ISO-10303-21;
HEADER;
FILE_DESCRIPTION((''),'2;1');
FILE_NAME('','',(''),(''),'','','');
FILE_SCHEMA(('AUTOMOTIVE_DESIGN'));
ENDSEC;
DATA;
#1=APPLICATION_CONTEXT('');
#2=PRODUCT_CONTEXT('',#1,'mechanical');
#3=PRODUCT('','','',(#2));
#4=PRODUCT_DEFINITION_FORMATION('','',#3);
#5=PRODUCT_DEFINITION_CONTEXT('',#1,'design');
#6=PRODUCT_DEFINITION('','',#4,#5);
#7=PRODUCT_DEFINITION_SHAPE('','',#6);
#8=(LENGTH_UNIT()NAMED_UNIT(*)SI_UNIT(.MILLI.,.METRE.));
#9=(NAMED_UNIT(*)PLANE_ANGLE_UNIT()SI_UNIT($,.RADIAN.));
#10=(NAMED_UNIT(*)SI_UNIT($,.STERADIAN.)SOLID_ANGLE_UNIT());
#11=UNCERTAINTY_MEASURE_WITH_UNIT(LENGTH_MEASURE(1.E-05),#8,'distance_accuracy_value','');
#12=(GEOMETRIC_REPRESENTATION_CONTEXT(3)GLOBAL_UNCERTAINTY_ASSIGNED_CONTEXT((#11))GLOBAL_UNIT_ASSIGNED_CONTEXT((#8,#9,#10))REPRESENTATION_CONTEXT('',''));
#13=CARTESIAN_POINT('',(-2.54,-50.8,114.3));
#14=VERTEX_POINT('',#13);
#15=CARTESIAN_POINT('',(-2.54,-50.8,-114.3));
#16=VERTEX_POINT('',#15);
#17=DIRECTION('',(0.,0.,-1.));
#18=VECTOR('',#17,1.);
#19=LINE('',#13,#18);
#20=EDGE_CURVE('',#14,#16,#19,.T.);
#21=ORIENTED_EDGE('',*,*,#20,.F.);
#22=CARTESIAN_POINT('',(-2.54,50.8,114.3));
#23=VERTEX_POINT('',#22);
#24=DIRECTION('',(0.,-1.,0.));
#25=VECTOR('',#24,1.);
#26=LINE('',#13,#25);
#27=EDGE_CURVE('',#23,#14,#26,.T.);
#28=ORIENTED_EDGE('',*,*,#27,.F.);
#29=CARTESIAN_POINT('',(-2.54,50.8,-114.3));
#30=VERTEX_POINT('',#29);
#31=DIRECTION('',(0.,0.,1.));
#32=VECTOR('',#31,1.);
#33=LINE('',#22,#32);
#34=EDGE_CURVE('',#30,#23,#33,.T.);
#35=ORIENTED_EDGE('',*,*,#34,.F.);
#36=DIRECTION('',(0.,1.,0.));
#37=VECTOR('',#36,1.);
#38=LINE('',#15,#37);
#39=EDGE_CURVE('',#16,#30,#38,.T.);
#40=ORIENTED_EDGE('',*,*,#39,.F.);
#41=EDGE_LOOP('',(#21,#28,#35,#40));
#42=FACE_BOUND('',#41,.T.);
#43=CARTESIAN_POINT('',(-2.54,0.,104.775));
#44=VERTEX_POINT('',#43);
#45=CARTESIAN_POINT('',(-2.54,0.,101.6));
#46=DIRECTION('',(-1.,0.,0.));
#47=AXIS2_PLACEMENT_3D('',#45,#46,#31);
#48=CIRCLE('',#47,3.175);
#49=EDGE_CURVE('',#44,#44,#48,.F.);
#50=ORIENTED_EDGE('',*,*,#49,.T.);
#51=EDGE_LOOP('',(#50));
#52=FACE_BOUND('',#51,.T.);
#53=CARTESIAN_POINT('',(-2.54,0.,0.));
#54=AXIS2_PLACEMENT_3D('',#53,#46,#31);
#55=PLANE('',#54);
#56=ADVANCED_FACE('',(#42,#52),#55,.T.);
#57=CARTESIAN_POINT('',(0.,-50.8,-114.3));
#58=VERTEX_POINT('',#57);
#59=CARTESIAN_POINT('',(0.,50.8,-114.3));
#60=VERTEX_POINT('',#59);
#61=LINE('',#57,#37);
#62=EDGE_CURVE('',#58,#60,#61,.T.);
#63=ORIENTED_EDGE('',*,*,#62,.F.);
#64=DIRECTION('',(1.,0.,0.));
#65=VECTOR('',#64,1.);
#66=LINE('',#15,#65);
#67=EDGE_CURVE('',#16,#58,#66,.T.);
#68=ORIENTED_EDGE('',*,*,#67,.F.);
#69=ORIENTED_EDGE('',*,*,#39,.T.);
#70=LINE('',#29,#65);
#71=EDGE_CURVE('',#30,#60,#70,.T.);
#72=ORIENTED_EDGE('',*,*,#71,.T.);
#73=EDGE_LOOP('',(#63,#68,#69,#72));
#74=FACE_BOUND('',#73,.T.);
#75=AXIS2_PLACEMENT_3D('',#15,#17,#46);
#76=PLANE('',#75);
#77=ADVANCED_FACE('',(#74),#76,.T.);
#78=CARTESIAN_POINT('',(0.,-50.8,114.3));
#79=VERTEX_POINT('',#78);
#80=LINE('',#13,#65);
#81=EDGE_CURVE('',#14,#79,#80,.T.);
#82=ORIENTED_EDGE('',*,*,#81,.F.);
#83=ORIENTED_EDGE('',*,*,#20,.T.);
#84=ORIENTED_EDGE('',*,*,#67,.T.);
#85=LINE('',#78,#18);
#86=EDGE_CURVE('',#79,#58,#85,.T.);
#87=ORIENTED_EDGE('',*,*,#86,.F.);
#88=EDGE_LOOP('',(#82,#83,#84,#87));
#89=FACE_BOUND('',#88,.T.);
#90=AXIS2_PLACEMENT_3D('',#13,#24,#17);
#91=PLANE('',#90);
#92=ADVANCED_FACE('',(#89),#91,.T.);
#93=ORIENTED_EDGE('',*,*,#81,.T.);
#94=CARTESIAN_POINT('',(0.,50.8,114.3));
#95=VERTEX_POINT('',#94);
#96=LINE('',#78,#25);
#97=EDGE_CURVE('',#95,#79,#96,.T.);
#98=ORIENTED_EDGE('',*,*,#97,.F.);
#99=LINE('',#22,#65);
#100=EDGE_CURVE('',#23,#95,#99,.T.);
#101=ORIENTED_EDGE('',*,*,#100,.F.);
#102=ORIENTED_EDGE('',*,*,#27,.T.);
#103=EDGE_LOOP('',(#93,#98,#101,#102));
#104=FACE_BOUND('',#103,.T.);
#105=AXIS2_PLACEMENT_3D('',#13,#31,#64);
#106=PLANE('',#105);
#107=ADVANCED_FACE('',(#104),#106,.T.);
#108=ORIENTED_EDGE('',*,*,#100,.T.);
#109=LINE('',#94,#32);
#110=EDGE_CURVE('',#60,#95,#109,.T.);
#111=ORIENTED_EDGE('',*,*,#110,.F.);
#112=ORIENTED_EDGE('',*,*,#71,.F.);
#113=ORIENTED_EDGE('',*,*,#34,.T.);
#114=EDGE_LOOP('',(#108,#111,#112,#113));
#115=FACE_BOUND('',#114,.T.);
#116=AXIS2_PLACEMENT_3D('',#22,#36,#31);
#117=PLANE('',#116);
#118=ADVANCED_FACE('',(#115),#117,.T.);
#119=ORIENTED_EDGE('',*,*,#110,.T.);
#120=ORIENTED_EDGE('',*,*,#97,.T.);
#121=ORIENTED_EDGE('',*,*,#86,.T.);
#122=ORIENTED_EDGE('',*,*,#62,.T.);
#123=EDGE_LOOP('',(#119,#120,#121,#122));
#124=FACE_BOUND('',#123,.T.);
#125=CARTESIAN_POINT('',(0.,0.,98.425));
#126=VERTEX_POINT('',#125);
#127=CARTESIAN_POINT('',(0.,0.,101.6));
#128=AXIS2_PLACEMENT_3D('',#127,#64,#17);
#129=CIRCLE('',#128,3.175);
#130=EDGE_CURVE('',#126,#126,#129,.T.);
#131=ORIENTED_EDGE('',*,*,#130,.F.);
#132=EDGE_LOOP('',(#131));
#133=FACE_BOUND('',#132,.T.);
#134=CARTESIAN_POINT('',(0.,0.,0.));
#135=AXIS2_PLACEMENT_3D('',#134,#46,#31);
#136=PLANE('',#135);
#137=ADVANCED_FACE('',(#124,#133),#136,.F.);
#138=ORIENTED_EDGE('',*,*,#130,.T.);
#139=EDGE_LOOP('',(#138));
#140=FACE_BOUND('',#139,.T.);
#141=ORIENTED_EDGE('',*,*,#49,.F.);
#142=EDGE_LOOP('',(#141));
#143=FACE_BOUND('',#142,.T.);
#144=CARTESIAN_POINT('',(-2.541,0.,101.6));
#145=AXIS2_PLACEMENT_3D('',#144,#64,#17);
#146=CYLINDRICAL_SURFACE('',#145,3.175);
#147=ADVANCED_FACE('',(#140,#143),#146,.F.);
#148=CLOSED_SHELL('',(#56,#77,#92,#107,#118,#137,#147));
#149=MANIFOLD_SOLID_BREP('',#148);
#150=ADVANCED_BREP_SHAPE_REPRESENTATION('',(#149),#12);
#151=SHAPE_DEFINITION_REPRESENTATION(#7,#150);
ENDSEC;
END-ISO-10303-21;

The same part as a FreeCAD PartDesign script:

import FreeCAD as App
import Part
import Sketcher
Q = App.Units.Quantity

doc = App.newDocument("Part")
body = doc.addObject("PartDesign::Body", "Body")

# Sketch on YZ plane
sketch1 = doc.addObject("Sketcher::SketchObject", "Sketch")
body.addObject(sketch1)
sketch1.AttachmentSupport = (doc.YZ_Plane, [""])
sketch1.MapMode = "FlatFace"
sketch1.addGeometry([
    Part.LineSegment(App.Vector(51, 114, 0), App.Vector(-51, 114, 0)),
    Part.LineSegment(App.Vector(-51, 114, 0), App.Vector(-51, -114, 0)),
    Part.LineSegment(App.Vector(-51, -114, 0), App.Vector(51, -114, 0)),
    Part.LineSegment(App.Vector(51, -114, 0), App.Vector(51, 114, 0)),
], False)
sketch1.addConstraint([
    Sketcher.Constraint("Coincident", 0, 2, 1, 1),
    Sketcher.Constraint("Coincident", 1, 2, 2, 1),
    Sketcher.Constraint("Coincident", 2, 2, 3, 1),
    Sketcher.Constraint("Coincident", 3, 2, 0, 1),
    Sketcher.Constraint("Horizontal", 0),
    Sketcher.Constraint("Vertical", 1),
    Sketcher.Constraint("Horizontal", 2),
    Sketcher.Constraint("Vertical", 3),
    Sketcher.Constraint("Symmetric", 0, 2, 2, 2, -1, 1),
    Sketcher.Constraint("DistanceX", 0, 2, 0, 1, Q("4 in")),
    Sketcher.Constraint("DistanceY", 1, 2, 1, 1, Q("9 in")),
])
pad1 = doc.addObject("PartDesign::Pad", "Pad")
body.addObject(pad1)
pad1.Profile = sketch1
pad1.Length = Q("0.1 in")
pad1.Reversed = True

# Sketch on YZ plane
sketch2 = doc.addObject("Sketcher::SketchObject", "Sketch001")
body.addObject(sketch2)
sketch2.AttachmentSupport = (doc.YZ_Plane, [""])
sketch2.MapMode = "FlatFace"
sketch2.addGeometry(Part.Circle(App.Vector(0, 101.6, 0), App.Vector(0, 0, 1), 3.2), False)
sketch2.addConstraint([
    Sketcher.Constraint("PointOnObject", 0, 3, -2),
    Sketcher.Constraint("Diameter", 0, Q("0.25 in")),
    Sketcher.Constraint("DistanceY", -1, 1, 0, 3, Q("4 in")),
])
pocket1 = doc.addObject("PartDesign::Pocket", "Pocket")
body.addObject(pocket1)
pocket1.Profile = sketch2
pocket1.Type = "UpToFirst"

doc.recompute()
